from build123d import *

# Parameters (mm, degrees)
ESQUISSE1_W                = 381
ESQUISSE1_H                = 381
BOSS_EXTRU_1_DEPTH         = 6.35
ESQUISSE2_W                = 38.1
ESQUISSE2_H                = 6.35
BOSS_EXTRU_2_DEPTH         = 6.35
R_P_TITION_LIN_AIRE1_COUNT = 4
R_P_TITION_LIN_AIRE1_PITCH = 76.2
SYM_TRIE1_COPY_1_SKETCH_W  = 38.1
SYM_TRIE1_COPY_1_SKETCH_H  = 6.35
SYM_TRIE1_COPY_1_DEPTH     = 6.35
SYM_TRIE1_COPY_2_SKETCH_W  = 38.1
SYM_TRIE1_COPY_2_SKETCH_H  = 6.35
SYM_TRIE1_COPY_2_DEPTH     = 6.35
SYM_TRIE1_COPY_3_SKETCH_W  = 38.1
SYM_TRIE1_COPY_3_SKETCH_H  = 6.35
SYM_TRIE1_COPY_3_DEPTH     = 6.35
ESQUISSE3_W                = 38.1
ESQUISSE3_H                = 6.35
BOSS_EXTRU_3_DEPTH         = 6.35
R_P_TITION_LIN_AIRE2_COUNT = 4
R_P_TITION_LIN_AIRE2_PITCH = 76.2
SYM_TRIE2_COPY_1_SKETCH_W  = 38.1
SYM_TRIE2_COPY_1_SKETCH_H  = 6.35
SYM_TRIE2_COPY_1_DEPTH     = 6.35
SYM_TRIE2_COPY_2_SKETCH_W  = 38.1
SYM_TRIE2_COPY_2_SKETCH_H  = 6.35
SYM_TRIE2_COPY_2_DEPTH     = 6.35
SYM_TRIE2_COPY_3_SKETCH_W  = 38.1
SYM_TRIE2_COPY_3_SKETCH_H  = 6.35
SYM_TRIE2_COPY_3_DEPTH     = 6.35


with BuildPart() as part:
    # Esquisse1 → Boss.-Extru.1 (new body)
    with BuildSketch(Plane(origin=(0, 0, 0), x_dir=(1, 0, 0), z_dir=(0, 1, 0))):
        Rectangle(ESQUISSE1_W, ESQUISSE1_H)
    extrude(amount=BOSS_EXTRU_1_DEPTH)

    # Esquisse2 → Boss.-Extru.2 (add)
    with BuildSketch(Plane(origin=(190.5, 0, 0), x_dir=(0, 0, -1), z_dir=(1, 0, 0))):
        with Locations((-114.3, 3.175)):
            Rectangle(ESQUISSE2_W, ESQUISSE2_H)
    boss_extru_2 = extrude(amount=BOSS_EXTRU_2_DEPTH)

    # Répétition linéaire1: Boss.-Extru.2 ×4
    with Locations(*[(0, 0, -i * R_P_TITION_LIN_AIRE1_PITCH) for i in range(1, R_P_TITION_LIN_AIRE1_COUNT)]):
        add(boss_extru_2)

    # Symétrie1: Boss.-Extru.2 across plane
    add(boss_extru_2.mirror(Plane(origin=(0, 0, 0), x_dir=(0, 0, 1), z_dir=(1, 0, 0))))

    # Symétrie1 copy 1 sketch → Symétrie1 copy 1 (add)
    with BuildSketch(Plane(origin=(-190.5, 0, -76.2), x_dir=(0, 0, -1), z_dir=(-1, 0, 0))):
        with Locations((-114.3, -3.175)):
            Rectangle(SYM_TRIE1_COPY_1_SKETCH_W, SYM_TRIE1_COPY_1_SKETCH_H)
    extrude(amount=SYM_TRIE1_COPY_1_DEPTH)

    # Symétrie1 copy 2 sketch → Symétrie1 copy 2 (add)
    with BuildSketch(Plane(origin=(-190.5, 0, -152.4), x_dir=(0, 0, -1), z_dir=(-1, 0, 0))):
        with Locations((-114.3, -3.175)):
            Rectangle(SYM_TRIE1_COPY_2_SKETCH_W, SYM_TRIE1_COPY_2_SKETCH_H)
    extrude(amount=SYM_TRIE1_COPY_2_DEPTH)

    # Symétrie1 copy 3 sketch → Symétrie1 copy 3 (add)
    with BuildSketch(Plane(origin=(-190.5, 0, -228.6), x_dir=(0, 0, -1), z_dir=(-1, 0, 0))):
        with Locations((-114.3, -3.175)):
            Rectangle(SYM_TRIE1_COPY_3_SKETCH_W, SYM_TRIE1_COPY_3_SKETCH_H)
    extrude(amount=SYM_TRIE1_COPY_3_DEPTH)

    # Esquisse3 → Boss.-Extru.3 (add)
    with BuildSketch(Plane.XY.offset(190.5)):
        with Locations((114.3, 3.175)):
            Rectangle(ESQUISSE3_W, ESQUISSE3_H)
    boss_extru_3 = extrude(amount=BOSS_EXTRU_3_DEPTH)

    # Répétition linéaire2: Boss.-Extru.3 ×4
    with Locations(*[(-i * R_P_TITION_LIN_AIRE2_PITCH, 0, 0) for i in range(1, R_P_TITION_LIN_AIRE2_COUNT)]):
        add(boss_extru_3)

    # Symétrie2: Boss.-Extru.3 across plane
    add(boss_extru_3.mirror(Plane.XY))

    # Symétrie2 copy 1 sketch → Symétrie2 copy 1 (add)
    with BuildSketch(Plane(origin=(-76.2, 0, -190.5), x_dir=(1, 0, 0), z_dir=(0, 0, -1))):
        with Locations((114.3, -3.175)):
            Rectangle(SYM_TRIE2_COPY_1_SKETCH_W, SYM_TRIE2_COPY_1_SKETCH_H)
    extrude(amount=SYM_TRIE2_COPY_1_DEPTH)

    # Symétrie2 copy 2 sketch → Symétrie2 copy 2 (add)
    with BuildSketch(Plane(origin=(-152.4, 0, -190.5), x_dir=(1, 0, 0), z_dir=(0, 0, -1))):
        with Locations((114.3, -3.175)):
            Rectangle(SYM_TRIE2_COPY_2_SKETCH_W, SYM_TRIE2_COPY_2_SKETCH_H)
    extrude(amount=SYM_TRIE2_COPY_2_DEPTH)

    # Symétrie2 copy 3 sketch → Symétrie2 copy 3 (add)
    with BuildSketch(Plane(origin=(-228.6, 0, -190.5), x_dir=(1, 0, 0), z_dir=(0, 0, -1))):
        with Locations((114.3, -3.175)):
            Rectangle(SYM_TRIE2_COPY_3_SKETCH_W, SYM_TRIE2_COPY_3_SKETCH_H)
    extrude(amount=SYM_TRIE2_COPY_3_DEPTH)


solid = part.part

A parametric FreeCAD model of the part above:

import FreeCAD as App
import Part
import Sketcher
from FreeCAD import Vector
Q = App.Units.Quantity


def add_polygon(sketch, points):
    """Adds a closed chain of lines whose ends are joined by coincident constraints."""
    first, n = sketch.GeometryCount, len(points)
    for a, b in zip(points, points[1:] + points[:1]):
        sketch.addGeometry(Part.LineSegment(App.Vector(*a, 0), App.Vector(*b, 0)), False)
    for i in range(n):
        sketch.addConstraint(Sketcher.Constraint("Coincident", first + i, 2, first + (i + 1) % n, 1))

doc = App.newDocument("Part")
params = doc.addObject("Spreadsheet::Sheet", "Params")
for row, (alias, value) in enumerate([
    ("sketch1_width", "15 in"),
    ("pad1_length", "0.25 in"),
    ("sketch2_height", "1.5 in"),
    ("sketch2_width", "0.25 in"),
    ("pad2_length", "0.25 in"),
    ("linearpattern_pitch", "3 in"),
    ("sketch3_height", "1.5 in"),
    ("sketch3_width", "0.25 in"),
    ("pad3_length", "0.25 in"),
    ("sketch4_height", "1.5 in"),
    ("sketch4_width", "0.25 in"),
    ("pad4_length", "0.25 in"),
    ("sketch5_height", "1.5 in"),
    ("sketch5_width", "0.25 in"),
    ("pad5_length", "0.25 in"),
    ("sketch6_width", "1.5 in"),
    ("sketch6_height", "0.25 in"),
    ("pad6_length", "0.25 in"),
    ("linearpattern2_pitch", "3 in"),
    ("sketch7_width", "1.5 in"),
    ("sketch7_height", "0.25 in"),
    ("pad7_length", "0.25 in"),
    ("sketch8_width", "1.5 in"),
    ("sketch8_height", "0.25 in"),
    ("pad8_length", "0.25 in"),
    ("sketch9_width", "1.5 in"),
    ("sketch9_height", "0.25 in"),
    ("pad9_length", "0.25 in"),
], start=1):
    params.set(f"A{row}", alias)
    params.set(f"B{row}", "=" + value)
    params.setAlias(f"B{row}", alias)

body = doc.addObject("PartDesign::Body", "Body")

sketch1 = body.newObject("Sketcher::SketchObject", "Sketch")
sketch1.AttachmentSupport = (doc.getObject("XZ_Plane"), [""])
sketch1.MapMode = "FlatFace"
add_polygon(sketch1, [(-190, -190), (-190, 190), (190, 190), (190, -190)])
sketch1.addConstraint([
    Sketcher.Constraint("Vertical", 0),
    Sketcher.Constraint("Horizontal", 1),
    Sketcher.Constraint("Vertical", 2),
    Sketcher.Constraint("Horizontal", 3),
    Sketcher.Constraint("Symmetric", 0, 2, 2, 2, -1, 1),
    Sketcher.Constraint("Equal", 3, 0),
    Sketcher.Constraint("DistanceX", 1, 1, 1, 2, Q("15 in")),
])
sketch1.setExpression("Constraints[10]", "Params.sketch1_width")
pad1 = body.newObject("PartDesign::Pad", "Pad")
pad1.Profile = sketch1
pad1.setExpression("Length", "Params.pad1_length")
pad1.Reversed = True

sketch2 = body.newObject("Sketcher::SketchObject", "Sketch001")
sketch2.AttachmentSupport = (doc.getObject("YZ_Plane"), [""])
sketch2.MapMode = "FlatFace"
sketch2.AttachmentOffset = App.Placement(Vector(0, 0, 7.5 * 25.4), App.Rotation())
add_polygon(sketch2, [(6, 133), (0, 133), (0, 95), (6, 95)])
sketch2.addConstraint([
    Sketcher.Constraint("Horizontal", 0),
    Sketcher.Constraint("Vertical", 1),
    Sketcher.Constraint("Horizontal", 2),
    Sketcher.Constraint("Vertical", 3),
    Sketcher.Constraint("PointOnObject", 0, 2, -2),
    Sketcher.Constraint("DistanceY", 1, 2, 1, 1, Q("1.5 in")),
    Sketcher.Constraint("DistanceX", 0, 2, 0, 1, Q("0.25 in")),
    Sketcher.Constraint("DistanceY", -1, 1, 0, 2, Q("5.25 in")),
])
sketch2.setExpression("Constraints[9]", "Params.sketch2_height")
sketch2.setExpression("Constraints[10]", "Params.sketch2_width")
pad2 = body.newObject("PartDesign::Pad", "Pad001")
pad2.Profile = sketch2
pad2.setExpression("Length", "Params.pad2_length")
doc.recompute()

linearpattern = body.newObject("PartDesign::LinearPattern", "LinearPattern")
linearpattern.Originals = [pad2]
linearpattern.Direction = (doc.getObject("Z_Axis"), [""])
linearpattern.Mode = "offset"
linearpattern.setExpression("Offset", "Params.linearpattern_pitch")
linearpattern.Occurrences = 4
linearpattern.Reversed = True
body.Tip = linearpattern
doc.recompute()

mirrored = body.newObject("PartDesign::Mirrored", "Mirrored")
mirrored.Originals = [pad2]
mirrored.MirrorPlane = (doc.getObject("YZ_Plane"), [""])
body.Tip = mirrored

sketch3 = body.newObject("Sketcher::SketchObject", "Sketch002")
sketch3.AttachmentSupport = (doc.getObject("YZ_Plane"), [""])
sketch3.MapMode = "FlatFace"
sketch3.AttachmentOffset = App.Placement(Vector(0, 0, -7.5 * 25.4), App.Rotation())
add_polygon(sketch3, [(0, 57), (6, 57), (6, 19), (0, 19)])
sketch3.addConstraint([
    Sketcher.Constraint("Horizontal", 0),
    Sketcher.Constraint("Vertical", 1),
    Sketcher.Constraint("Horizontal", 2),
    Sketcher.Constraint("Vertical", 3),
    Sketcher.Constraint("PointOnObject", 2, 2, -2),
    Sketcher.Constraint("DistanceY", 1, 2, 1, 1, Q("1.5 in")),
    Sketcher.Constraint("DistanceX", 0, 1, 0, 2, Q("0.25 in")),
    Sketcher.Constraint("DistanceY", -1, 1, 0, 2, Q("2.25 in")),
])
sketch3.setExpression("Constraints[9]", "Params.sketch3_height")
sketch3.setExpression("Constraints[10]", "Params.sketch3_width")
pad3 = body.newObject("PartDesign::Pad", "Pad002")
pad3.Profile = sketch3
pad3.setExpression("Length", "Params.pad3_length")
pad3.Reversed = True

sketch4 = body.newObject("Sketcher::SketchObject", "Sketch003")
sketch4.AttachmentSupport = (doc.getObject("YZ_Plane"), [""])
sketch4.MapMode = "FlatFace"
sketch4.AttachmentOffset = App.Placement(Vector(0, 0, -7.5 * 25.4), App.Rotation())
add_polygon(sketch4, [(0, -19), (6, -19), (6, -57), (0, -57)])
sketch4.addConstraint([
    Sketcher.Constraint("Horizontal", 0),
    Sketcher.Constraint("Vertical", 1),
    Sketcher.Constraint("Horizontal", 2),
    Sketcher.Constraint("Vertical", 3),
    Sketcher.Constraint("PointOnObject", 2, 2, -2),
    Sketcher.Constraint("DistanceY", 1, 2, 1, 1, Q("1.5 in")),
    Sketcher.Constraint("DistanceX", 0, 1, 0, 2, Q("0.25 in")),
    Sketcher.Constraint("DistanceY", 0, 2, -1, 1, Q("0.75 in")),
])
sketch4.setExpression("Constraints[9]", "Params.sketch4_height")
sketch4.setExpression("Constraints[10]", "Params.sketch4_width")
pad4 = body.newObject("PartDesign::Pad", "Pad003")
pad4.Profile = sketch4
pad4.setExpression("Length", "Params.pad4_length")
pad4.Reversed = True

sketch5 = body.newObject("Sketcher::SketchObject", "Sketch004")
sketch5.AttachmentSupport = (doc.getObject("YZ_Plane"), [""])
sketch5.MapMode = "FlatFace"
sketch5.AttachmentOffset = App.Placement(Vector(0, 0, -7.5 * 25.4), App.Rotation())
add_polygon(sketch5, [(0, -95), (6, -95), (6, -133), (0, -133)])
sketch5.addConstraint([
    Sketcher.Constraint("Horizontal", 0),
    Sketcher.Constraint("Vertical", 1),
    Sketcher.Constraint("Horizontal", 2),
    Sketcher.Constraint("Vertical", 3),
    Sketcher.Constraint("PointOnObject", 2, 2, -2),
    Sketcher.Constraint("DistanceY", 1, 2, 1, 1, Q("1.5 in")),
    Sketcher.Constraint("DistanceX", 0, 1, 0, 2, Q("0.25 in")),
    Sketcher.Constraint("DistanceY", 0, 2, -1, 1, Q("3.75 in")),
])
sketch5.setExpression("Constraints[9]", "Params.sketch5_height")
sketch5.setExpression("Constraints[10]", "Params.sketch5_width")
pad5 = body.newObject("PartDesign::Pad", "Pad004")
pad5.Profile = sketch5
pad5.setExpression("Length", "Params.pad5_length")
pad5.Reversed = True

sketch6 = body.newObject("Sketcher::SketchObject", "Sketch005")
sketch6.AttachmentSupport = (doc.getObject("XY_Plane"), [""])
sketch6.MapMode = "FlatFace"
sketch6.AttachmentOffset = App.Placement(Vector(0, 0, 7.5 * 25.4), App.Rotation())
add_polygon(sketch6, [(95, 6), (95, 0), (133, 0), (133, 6)])
sketch6.addConstraint([
    Sketcher.Constraint("Vertical", 0),
    Sketcher.Constraint("Horizontal", 1),
    Sketcher.Constraint("Vertical", 2),
    Sketcher.Constraint("Horizontal", 3),
    Sketcher.Constraint("PointOnObject", 0, 2, -1),
    Sketcher.Constraint("DistanceX", 1, 1, 1, 2, Q("1.5 in")),
    Sketcher.Constraint("DistanceY", 0, 2, 0, 1, Q("0.25 in")),
    Sketcher.Constraint("DistanceX", -1, 1, 0, 2, Q("3.75 in")),
])
sketch6.setExpression("Constraints[9]", "Params.sketch6_width")
sketch6.setExpression("Constraints[10]", "Params.sketch6_height")
pad6 = body.newObject("PartDesign::Pad", "Pad005")
pad6.Profile = sketch6
pad6.setExpression("Length", "Params.pad6_length")
doc.recompute()

linearpattern2 = body.newObject("PartDesign::LinearPattern", "LinearPattern001")
linearpattern2.Originals = [pad6]
linearpattern2.Direction = (doc.getObject("X_Axis"), [""])
linearpattern2.Mode = "offset"
linearpattern2.setExpression("Offset", "Params.linearpattern2_pitch")
linearpattern2.Occurrences = 4
linearpattern2.Reversed = True
body.Tip = linearpattern2
doc.recompute()

mirrored2 = body.newObject("PartDesign::Mirrored", "Mirrored001")
mirrored2.Originals = [pad6]
mirrored2.MirrorPlane = (doc.getObject("XY_Plane"), [""])
body.Tip = mirrored2

sketch7 = body.newObject("Sketcher::SketchObject", "Sketch006")
sketch7.AttachmentSupport = (doc.getObject("XY_Plane"), [""])
sketch7.MapMode = "FlatFace"
sketch7.AttachmentOffset = App.Placement(Vector(0, 0, -7.5 * 25.4), App.Rotation())
add_polygon(sketch7, [(19, 0), (19, 6), (57, 6), (57, 0)])
sketch7.addConstraint([
    Sketcher.Constraint("Vertical", 0),
    Sketcher.Constraint("Horizontal", 1),
    Sketcher.Constraint("Vertical", 2),
    Sketcher.Constraint("Horizontal", 3),
    Sketcher.Constraint("PointOnObject", 2, 2, -1),
    Sketcher.Constraint("DistanceX", 1, 1, 1, 2, Q("1.5 in")),
    Sketcher.Constraint("DistanceY", 0, 1, 0, 2, Q("0.25 in")),
    Sketcher.Constraint("DistanceX", -1, 1, 0, 2, Q("0.75 in")),
])
sketch7.setExpression("Constraints[9]", "Params.sketch7_width")
sketch7.setExpression("Constraints[10]", "Params.sketch7_height")
pad7 = body.newObject("PartDesign::Pad", "Pad006")
pad7.Profile = sketch7
pad7.setExpression("Length", "Params.pad7_length")
pad7.Reversed = True

sketch8 = body.newObject("Sketcher::SketchObject", "Sketch007")
sketch8.AttachmentSupport = (doc.getObject("XY_Plane"), [""])
sketch8.MapMode = "FlatFace"
sketch8.AttachmentOffset = App.Placement(Vector(0, 0, -7.5 * 25.4), App.Rotation())
add_polygon(sketch8, [(-57, 0), (-57, 6), (-19, 6), (-19, 0)])
sketch8.addConstraint([
    Sketcher.Constraint("Vertical", 0),
    Sketcher.Constraint("Horizontal", 1),
    Sketcher.Constraint("Vertical", 2),
    Sketcher.Constraint("Horizontal", 3),
    Sketcher.Constraint("PointOnObject", 2, 2, -1),
    Sketcher.Constraint("DistanceX", 1, 1, 1, 2, Q("1.5 in")),
    Sketcher.Constraint("DistanceY", 0, 1, 0, 2, Q("0.25 in")),
    Sketcher.Constraint("DistanceX", 0, 2, -1, 1, Q("2.25 in")),
])
sketch8.setExpression("Constraints[9]", "Params.sketch8_width")
sketch8.setExpression("Constraints[10]", "Params.sketch8_height")
pad8 = body.newObject("PartDesign::Pad", "Pad007")
pad8.Profile = sketch8
pad8.setExpression("Length", "Params.pad8_length")
pad8.Reversed = True

sketch9 = body.newObject("Sketcher::SketchObject", "Sketch008")
sketch9.AttachmentSupport = (doc.getObject("XY_Plane"), [""])
sketch9.MapMode = "FlatFace"
sketch9.AttachmentOffset = App.Placement(Vector(0, 0, -7.5 * 25.4), App.Rotation())
add_polygon(sketch9, [(-133, 0), (-133, 6), (-95, 6), (-95, 0)])
sketch9.addConstraint([
    Sketcher.Constraint("Vertical", 0),
    Sketcher.Constraint("Horizontal", 1),
    Sketcher.Constraint("Vertical", 2),
    Sketcher.Constraint("Horizontal", 3),
    Sketcher.Constraint("PointOnObject", 2, 2, -1),
    Sketcher.Constraint("DistanceX", 1, 1, 1, 2, Q("1.5 in")),
    Sketcher.Constraint("DistanceY", 0, 1, 0, 2, Q("0.25 in")),
    Sketcher.Constraint("DistanceX", 0, 2, -1, 1, Q("5.25 in")),
])
sketch9.setExpression("Constraints[9]", "Params.sketch9_width")
sketch9.setExpression("Constraints[10]", "Params.sketch9_height")
pad9 = body.newObject("PartDesign::Pad", "Pad008")
pad9.Profile = sketch9
pad9.setExpression("Length", "Params.pad9_length")
pad9.Reversed = True

doc.recompute()
